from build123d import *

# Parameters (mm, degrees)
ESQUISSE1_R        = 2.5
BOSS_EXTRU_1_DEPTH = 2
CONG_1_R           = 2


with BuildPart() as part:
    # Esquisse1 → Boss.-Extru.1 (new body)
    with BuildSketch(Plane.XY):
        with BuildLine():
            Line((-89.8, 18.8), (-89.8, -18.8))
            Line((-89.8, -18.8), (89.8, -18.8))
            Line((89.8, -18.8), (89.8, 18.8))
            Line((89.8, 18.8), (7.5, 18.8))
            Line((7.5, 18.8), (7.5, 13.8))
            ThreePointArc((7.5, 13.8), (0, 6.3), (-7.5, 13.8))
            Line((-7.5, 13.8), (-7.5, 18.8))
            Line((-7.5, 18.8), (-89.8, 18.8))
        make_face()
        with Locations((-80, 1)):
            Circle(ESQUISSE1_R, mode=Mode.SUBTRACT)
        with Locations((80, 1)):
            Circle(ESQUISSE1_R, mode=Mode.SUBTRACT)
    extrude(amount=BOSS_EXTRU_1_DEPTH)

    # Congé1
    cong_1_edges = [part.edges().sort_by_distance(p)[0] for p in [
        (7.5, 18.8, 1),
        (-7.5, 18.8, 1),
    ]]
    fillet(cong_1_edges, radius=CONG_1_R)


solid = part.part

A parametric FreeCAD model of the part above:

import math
import FreeCAD as App
import Part
import Sketcher

V = App.Vector


def edges_at(feature, points):
    """Names of the edges that pass closest to the given points."""
    edges = feature.Shape.Edges
    near = lambda p: min(range(len(edges)), key=lambda i: edges[i].distToShape(Part.Vertex(*p))[0])
    return sorted({f"Edge{near(p) + 1}" for p in points})

doc = App.newDocument("Part")
params = doc.addObject("Spreadsheet::Sheet", "Params")
for row, (alias, value) in enumerate([
    ("sketch1_diameter", "5 mm"),
    ("sketch1_radius", "7.5 mm"),
    ("sketch1_height", "5 mm"),
    ("sketch1_width", "179.6 mm"),
    ("sketch1_height2", "37.6 mm"),
    ("pad1_length", "2 mm"),
    ("fillet_radius", "2 mm"),
], start=1):
    params.set(f"A{row}", alias)
    params.set(f"B{row}", "=" + value)
    params.setAlias(f"B{row}", alias)

body = doc.addObject("PartDesign::Body", "Body")

sketch1 = body.newObject("Sketcher::SketchObject", "Sketch")
sketch1.AttachmentSupport = (doc.getObject("XY_Plane"), [""])
sketch1.MapMode = "FlatFace"
sketch1.addGeometry(Part.LineSegment(V(-89.8, 18.8, 0), V(-89.8, -18.8, 0)), False)
sketch1.addGeometry(Part.LineSegment(V(-89.8, -18.8, 0), V(89.8, -18.8, 0)), False)
sketch1.addGeometry(Part.LineSegment(V(89.8, -18.8, 0), V(89.8, 18.8, 0)), False)
sketch1.addGeometry(Part.LineSegment(V(89.8, 18.8, 0), V(7.5, 18.8, 0)), False)
sketch1.addGeometry(Part.LineSegment(V(7.5, 18.8, 0), V(7.5, 13.8, 0)), False)
sketch1.addGeometry(Part.ArcOfCircle(Part.Circle(V(0, 13.8, 0), V(0, 0, 1), 7.5), math.radians(180), math.radians(360)), False)
sketch1.addGeometry(Part.LineSegment(V(-7.5, 13.8, 0), V(-7.5, 18.8, 0)), False)
sketch1.addGeometry(Part.LineSegment(V(-7.5, 18.8, 0), V(-89.8, 18.8, 0)), False)
sketch1.addGeometry(Part.Circle(V(-80, 1, 0), V(0, 0, 1), 2.5), False)
sketch1.addGeometry(Part.Circle(V(80, 1, 0), V(0, 0, 1), 2.5), False)
sketch1.addConstraint(Sketcher.Constraint("Coincident", 0, 2, 1, 1))
sketch1.addConstraint(Sketcher.Constraint("Coincident", 1, 2, 2, 1))
sketch1.addConstraint(Sketcher.Constraint("Coincident", 2, 2, 3, 1))
sketch1.addConstraint(Sketcher.Constraint("Coincident", 3, 2, 4, 1))
sketch1.addConstraint(Sketcher.Constraint("Tangent", 4, 2, 5, 2))
sketch1.addConstraint(Sketcher.Constraint("Tangent", 5, 1, 6, 1))
sketch1.addConstraint(Sketcher.Constraint("Coincident", 6, 2, 7, 1))
sketch1.addConstraint(Sketcher.Constraint("Coincident", 7, 2, 0, 1))
sketch1.addConstraint(Sketcher.Constraint("Vertical", 0))
sketch1.addConstraint(Sketcher.Constraint("Horizontal", 1))
sketch1.addConstraint(Sketcher.Constraint("Vertical", 2))
sketch1.addConstraint(Sketcher.Constraint("Horizontal", 3))
sketch1.addConstraint(Sketcher.Constraint("Vertical", 4))
sketch1.addConstraint(Sketcher.Constraint("Vertical", 6))
sketch1.addConstraint(Sketcher.Constraint("Horizontal", 7))
sketch1.addConstraint(Sketcher.Constraint("Equal", 8, 9))
sketch1.addConstraint(Sketcher.Constraint("Symmetric", 0, 2, 2, 2, -1, 1))
sketch1.addConstraint(Sketcher.Constraint("Symmetric", 8, 3, 9, 3, -2))
sketch1.addConstraint(Sketcher.Constraint("Symmetric", 3, 2, 6, 2, -2))
sketch1.addConstraint(Sketcher.Constraint("Diameter", 8, 5.0))
sketch1.addConstraint(Sketcher.Constraint("Radius", 5, 7.5))
sketch1.addConstraint(Sketcher.Constraint("DistanceY", 4, 2, 4, 1, 5.0))
sketch1.addConstraint(Sketcher.Constraint("DistanceX", 1, 1, 1, 2, 179.6))
sketch1.addConstraint(Sketcher.Constraint("DistanceY", 0, 2, 0, 1, 37.6))
sketch1.addConstraint(Sketcher.Constraint("DistanceX", 8, 3, -1, 1, 80.0))
sketch1.addConstraint(Sketcher.Constraint("DistanceY", -1, 1, 8, 3, 1.0))
sketch1.setExpression("Constraints[19]", "Params.sketch1_diameter")
sketch1.setExpression("Constraints[20]", "Params.sketch1_radius")
sketch1.setExpression("Constraints[21]", "Params.sketch1_height")
sketch1.setExpression("Constraints[22]", "Params.sketch1_width")
sketch1.setExpression("Constraints[23]", "Params.sketch1_height2")
pad1 = body.newObject("PartDesign::Pad", "Pad")
pad1.Profile = sketch1
pad1.setExpression("Length", "Params.pad1_length")
doc.recompute()

fillet = body.newObject("PartDesign::Fillet", "Fillet")
fillet.Base = (pad1, edges_at(pad1, [(7.5, 18.8, 1), (-7.5, 18.8, 1)]))
fillet.setExpression("Radius", "Params.fillet_radius")

doc.recompute()
